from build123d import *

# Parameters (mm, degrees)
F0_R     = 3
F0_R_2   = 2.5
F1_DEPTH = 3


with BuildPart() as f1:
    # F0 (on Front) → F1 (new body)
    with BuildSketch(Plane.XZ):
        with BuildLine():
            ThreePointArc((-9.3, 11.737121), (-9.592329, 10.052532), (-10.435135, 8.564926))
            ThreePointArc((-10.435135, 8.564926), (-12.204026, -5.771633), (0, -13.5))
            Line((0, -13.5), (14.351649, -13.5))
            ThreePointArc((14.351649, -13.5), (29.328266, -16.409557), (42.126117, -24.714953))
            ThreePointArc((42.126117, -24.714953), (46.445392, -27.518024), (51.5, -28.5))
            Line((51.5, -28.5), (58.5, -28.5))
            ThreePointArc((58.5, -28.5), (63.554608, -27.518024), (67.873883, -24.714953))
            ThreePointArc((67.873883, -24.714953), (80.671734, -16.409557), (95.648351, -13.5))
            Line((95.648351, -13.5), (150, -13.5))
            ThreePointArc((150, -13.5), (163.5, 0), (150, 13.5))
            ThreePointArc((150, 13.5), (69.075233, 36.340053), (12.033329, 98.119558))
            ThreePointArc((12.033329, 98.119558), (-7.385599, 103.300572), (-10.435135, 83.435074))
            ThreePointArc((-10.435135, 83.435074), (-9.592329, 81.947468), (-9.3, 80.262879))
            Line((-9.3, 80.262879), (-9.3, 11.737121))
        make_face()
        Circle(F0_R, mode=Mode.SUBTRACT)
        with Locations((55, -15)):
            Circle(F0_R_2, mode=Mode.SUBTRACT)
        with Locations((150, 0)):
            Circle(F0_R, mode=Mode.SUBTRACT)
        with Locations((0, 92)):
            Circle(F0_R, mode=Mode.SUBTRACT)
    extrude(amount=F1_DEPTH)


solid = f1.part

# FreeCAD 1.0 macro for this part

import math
import FreeCAD as App
import Part
import Sketcher

V = App.Vector

doc = App.newDocument("Part")
body = doc.addObject("PartDesign::Body", "Body")

sketch1 = body.newObject("Sketcher::SketchObject", "Sketch")
sketch1.AttachmentSupport = (doc.getObject("XZ_Plane"), [""])
sketch1.MapMode = "FlatFace"
sketch1.addGeometry(Part.ArcOfCircle(Part.Circle(V(-14.299992, 11.737118, 0), V(0, 0, 1), 4.999992), math.radians(-39.378415), math.radians(0.000037)), False)
sketch1.addGeometry(Part.ArcOfCircle(Part.Circle(V(0, 0, 0), V(0, 0, 1), 13.5), math.radians(140.621615), math.radians(270)), False)
sketch1.addGeometry(Part.LineSegment(V(0, -13.5, 0), V(14.351649, -13.5, 0)), False)
sketch1.addGeometry(Part.ArcOfCircle(Part.Circle(V(14.35165, -53.499997, 0), V(0, 0, 1), 39.999997), math.radians(46.023624), math.radians(90.000002)), False)
sketch1.addGeometry(Part.ArcOfCircle(Part.Circle(V(51.500002, -14.999995, 0), V(0, 0, 1), 13.500005), math.radians(-133.976369), math.radians(-90.000009)), False)
sketch1.addGeometry(Part.LineSegment(V(51.5, -28.5, 0), V(58.5, -28.5, 0)), False)
sketch1.addGeometry(Part.ArcOfCircle(Part.Circle(V(58.499998, -14.999995, 0), V(0, 0, 1), 13.500005), math.radians(-89.999991), math.radians(-46.023631)), False)
sketch1.addGeometry(Part.ArcOfCircle(Part.Circle(V(95.64835, -53.499997, 0), V(0, 0, 1), 39.999997), math.radians(89.999998), math.radians(133.976376)), False)
sketch1.addGeometry(Part.LineSegment(V(95.648351, -13.5, 0), V(150, -13.5, 0)), False)
sketch1.addGeometry(Part.ArcOfCircle(Part.Circle(V(150, 0, 0), V(0, 0, 1), 13.5), math.radians(-90), math.radians(90)), False)
sketch1.addGeometry(Part.ArcOfCircle(Part.Circle(V(150.000001, 168.28261, 0), V(0, 0, 1), 154.78261), math.radians(-153.044354), math.radians(-90)), False)
sketch1.addGeometry(Part.ArcOfCircle(Part.Circle(V(0, 92, 0), V(0, 0, 1), 13.5), math.radians(26.955645), math.radians(219.378386)), False)
sketch1.addGeometry(Part.ArcOfCircle(Part.Circle(V(-14.299992, 80.262882, 0), V(0, 0, 1), 4.999992), math.radians(-0.000037), math.radians(39.378415)), False)
sketch1.addGeometry(Part.LineSegment(V(-9.3, 80.262879, 0), V(-9.3, 11.737121, 0)), False)
sketch1.addGeometry(Part.Circle(V(0, 0, 0), V(0, 0, 1), 3), False)
sketch1.addGeometry(Part.Circle(V(55, -15, 0), V(0, 0, 1), 2.5), False)
sketch1.addGeometry(Part.Circle(V(150, 0, 0), V(0, 0, 1), 3), False)
sketch1.addGeometry(Part.Circle(V(0, 92, 0), V(0, 0, 1), 3), False)
sketch1.addConstraint(Sketcher.Constraint("Tangent", 0, 1, 1, 1))
sketch1.addConstraint(Sketcher.Constraint("Tangent", 1, 2, 2, 1))
sketch1.addConstraint(Sketcher.Constraint("Tangent", 2, 2, 3, 2))
sketch1.addConstraint(Sketcher.Constraint("Tangent", 3, 1, 4, 1))
sketch1.addConstraint(Sketcher.Constraint("Tangent", 4, 2, 5, 1))
sketch1.addConstraint(Sketcher.Constraint("Tangent", 5, 2, 6, 1))
sketch1.addConstraint(Sketcher.Constraint("Tangent", 6, 2, 7, 2))
sketch1.addConstraint(Sketcher.Constraint("Tangent", 7, 1, 8, 1))
sketch1.addConstraint(Sketcher.Constraint("Tangent", 8, 2, 9, 1))
sketch1.addConstraint(Sketcher.Constraint("Tangent", 9, 2, 10, 2))
sketch1.addConstraint(Sketcher.Constraint("Tangent", 10, 1, 11, 1))
sketch1.addConstraint(Sketcher.Constraint("Tangent", 11, 2, 12, 2))
sketch1.addConstraint(Sketcher.Constraint("Tangent", 12, 1, 13, 1))
sketch1.addConstraint(Sketcher.Constraint("Tangent", 13, 2, 0, 2))
sketch1.addConstraint(Sketcher.Constraint("Horizontal", 2))
sketch1.addConstraint(Sketcher.Constraint("Horizontal", 5))
sketch1.addConstraint(Sketcher.Constraint("Horizontal", 8))
sketch1.addConstraint(Sketcher.Constraint("Vertical", 13))
sketch1.addConstraint(Sketcher.Constraint("Coincident", 1, 3, -1, 1))
sketch1.addConstraint(Sketcher.Constraint("Coincident", 14, 3, -1, 1))
sketch1.addConstraint(Sketcher.Constraint("Coincident", 16, 3, 9, 3))
sketch1.addConstraint(Sketcher.Constraint("Coincident", 17, 3, 11, 3))
sketch1.addConstraint(Sketcher.Constraint("Equal", 4, 6))
sketch1.addConstraint(Sketcher.Constraint("Equal", 3, 7))
sketch1.addConstraint(Sketcher.Constraint("Equal", 1, 9))
sketch1.addConstraint(Sketcher.Constraint("Equal", 9, 11))
sketch1.addConstraint(Sketcher.Constraint("Equal", 0, 12))
sketch1.addConstraint(Sketcher.Constraint("Equal", 14, 16))
sketch1.addConstraint(Sketcher.Constraint("Equal", 16, 17))
sketch1.addConstraint(Sketcher.Constraint("Symmetric", 8, 2, 9, 2, -1))
sketch1.addConstraint(Sketcher.Constraint("PointOnObject", 11, 3, -2))
sketch1.addConstraint(Sketcher.Constraint("Diameter", 14, 6.0))
sketch1.addConstraint(Sketcher.Constraint("Diameter", 15, 5.0))
sketch1.addConstraint(Sketcher.Constraint("Radius", 1, 13.5))
sketch1.addConstraint(Sketcher.Constraint("DistanceX", 5, 1, 5, 2, 7.0))
sketch1.addConstraint(Sketcher.Constraint("DistanceX", -1, 1, 9, 3, 150.0))
sketch1.addConstraint(Sketcher.Constraint("DistanceY", -1, 1, 11, 3, 92.0))
sketch1.addConstraint(Sketcher.Constraint("DistanceX", -1, 1, 15, 3, 55.0))
sketch1.addConstraint(Sketcher.Constraint("DistanceY", 15, 3, -1, 1, 15.0))
sketch1.addConstraint(Sketcher.Constraint("DistanceY", 4, 2, 2, 2, 15.0))
sketch1.addConstraint(Sketcher.Constraint("DistanceX", -1, 1, 4, 2, 51.5))
sketch1.addConstraint(Sketcher.Constraint("DistanceX", 12, 1, -1, 1, 9.3))
sketch1.addConstraint(Sketcher.Constraint("Radius", 0, 4.999992))
sketch1.addConstraint(Sketcher.Constraint("Radius", 3, 39.999997))
sketch1.addConstraint(Sketcher.Constraint("Radius", 4, 13.500005))
pad1 = body.newObject("PartDesign::Pad", "Pad")
pad1.Profile = sketch1
pad1.Length = 3

doc.recompute()
